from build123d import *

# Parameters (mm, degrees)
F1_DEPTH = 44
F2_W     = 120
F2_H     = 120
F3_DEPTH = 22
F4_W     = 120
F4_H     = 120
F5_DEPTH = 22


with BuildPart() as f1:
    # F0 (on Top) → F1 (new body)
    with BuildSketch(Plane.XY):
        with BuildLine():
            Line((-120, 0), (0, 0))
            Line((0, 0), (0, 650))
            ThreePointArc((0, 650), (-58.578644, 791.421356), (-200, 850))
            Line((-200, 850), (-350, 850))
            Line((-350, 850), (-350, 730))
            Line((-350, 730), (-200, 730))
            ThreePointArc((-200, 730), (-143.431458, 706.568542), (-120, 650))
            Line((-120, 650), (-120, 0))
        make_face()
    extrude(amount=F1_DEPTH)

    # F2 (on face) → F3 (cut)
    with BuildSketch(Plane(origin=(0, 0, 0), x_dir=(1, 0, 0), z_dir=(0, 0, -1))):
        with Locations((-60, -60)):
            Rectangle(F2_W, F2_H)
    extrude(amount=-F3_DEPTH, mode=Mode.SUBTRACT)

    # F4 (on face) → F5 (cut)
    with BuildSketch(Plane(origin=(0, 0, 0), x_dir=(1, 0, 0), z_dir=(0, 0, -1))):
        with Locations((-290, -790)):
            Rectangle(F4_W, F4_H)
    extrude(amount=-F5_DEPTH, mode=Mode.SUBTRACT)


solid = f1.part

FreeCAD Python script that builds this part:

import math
import FreeCAD as App
import Part
import Sketcher

V = App.Vector


def add_polygon(sketch, points):
    """Adds a closed chain of lines whose ends are joined by coincident constraints."""
    first, n = sketch.GeometryCount, len(points)
    for a, b in zip(points, points[1:] + points[:1]):
        sketch.addGeometry(Part.LineSegment(App.Vector(*a, 0), App.Vector(*b, 0)), False)
    for i in range(n):
        sketch.addConstraint(Sketcher.Constraint("Coincident", first + i, 2, first + (i + 1) % n, 1))

doc = App.newDocument("Part")
body = doc.addObject("PartDesign::Body", "Body")

# Sketch on XY plane
sketch1 = doc.addObject("Sketcher::SketchObject", "Sketch")
body.addObject(sketch1)
sketch1.AttachmentSupport = (doc.XY_Plane, [""])
sketch1.MapMode = "FlatFace"
sketch1.addGeometry([
    Part.LineSegment(V(-120, 0, 0), V(0, 0, 0)),  # 0
    Part.LineSegment(V(0, 0, 0), V(0, 650, 0)),  # 1
    Part.ArcOfCircle(Part.Circle(V(-200, 650, 0), V(0, 0, 1), 200), math.radians(0), math.radians(90)),  # 2
    Part.LineSegment(V(-200, 850, 0), V(-350, 850, 0)),  # 3
    Part.LineSegment(V(-350, 850, 0), V(-350, 730, 0)),  # 4
    Part.LineSegment(V(-350, 730, 0), V(-200, 730, 0)),  # 5
    Part.ArcOfCircle(Part.Circle(V(-200, 650, 0), V(0, 0, 1), 80), math.radians(0), math.radians(90)),  # 6
    Part.LineSegment(V(-120, 650, 0), V(-120, 0, 0)),  # 7
], False)
sketch1.addConstraint([
    Sketcher.Constraint("Coincident", 0, 2, 1, 1),
    Sketcher.Constraint("Tangent", 1, 2, 2, 1),
    Sketcher.Constraint("Tangent", 2, 2, 3, 1),
    Sketcher.Constraint("Coincident", 3, 2, 4, 1),
    Sketcher.Constraint("Coincident", 4, 2, 5, 1),
    Sketcher.Constraint("Tangent", 5, 2, 6, 2),
    Sketcher.Constraint("Tangent", 6, 1, 7, 1),
    Sketcher.Constraint("Coincident", 7, 2, 0, 1),
    Sketcher.Constraint("Horizontal", 0),
    Sketcher.Constraint("Vertical", 1),
    Sketcher.Constraint("Horizontal", 3),
    Sketcher.Constraint("Vertical", 4),
    Sketcher.Constraint("Horizontal", 5),
    Sketcher.Constraint("Vertical", 7),
    Sketcher.Constraint("Coincident", 0, 2, -1, 1),
    Sketcher.Constraint("Coincident", 6, 3, 2, 3),
    Sketcher.Constraint("Radius", 2, 200.000001),
    Sketcher.Constraint("Radius", 6, 80.000002),
    Sketcher.Constraint("DistanceX", 3, 2, 3, 1, 150.0),
    Sketcher.Constraint("DistanceY", 1, 1, 1, 2, 650.0),
])
pad1 = doc.addObject("PartDesign::Pad", "Pad")
body.addObject(pad1)
pad1.Profile = sketch1
pad1.Length = 44

# Sketch on XY plane
sketch2 = doc.addObject("Sketcher::SketchObject", "Sketch001")
body.addObject(sketch2)
sketch2.AttachmentSupport = (doc.XY_Plane, [""])
sketch2.MapMode = "FlatFace"
add_polygon(sketch2, [(-120, 0), (-120, 120), (0, 120), (0, 0)])  # lines 0-3
sketch2.addConstraint([
    Sketcher.Constraint("Vertical", 0),
    Sketcher.Constraint("Horizontal", 1),
    Sketcher.Constraint("Vertical", 2),
    Sketcher.Constraint("Horizontal", 3),
    Sketcher.Constraint("Coincident", 2, 2, -1, 1),
    Sketcher.Constraint("Equal", 3, 0),
    Sketcher.Constraint("DistanceX", 1, 1, 1, 2, 120.0),
])
pocket1 = doc.addObject("PartDesign::Pocket", "Pocket")
body.addObject(pocket1)
pocket1.Profile = sketch2
pocket1.Length = 22
pocket1.Reversed = True

# Sketch on XY plane
sketch3 = doc.addObject("Sketcher::SketchObject", "Sketch002")
body.addObject(sketch3)
sketch3.AttachmentSupport = (doc.XY_Plane, [""])
sketch3.MapMode = "FlatFace"
add_polygon(sketch3, [(-350, 730), (-350, 850), (-230, 850), (-230, 730)])  # lines 0-3
sketch3.addConstraint([
    Sketcher.Constraint("Vertical", 0),
    Sketcher.Constraint("Horizontal", 1),
    Sketcher.Constraint("Vertical", 2),
    Sketcher.Constraint("Horizontal", 3),
    Sketcher.Constraint("Equal", 3, 0),
    Sketcher.Constraint("DistanceX", 1, 1, 1, 2, 120.0),
    Sketcher.Constraint("DistanceX", 0, 2, -1, 1, 350.0),
    Sketcher.Constraint("DistanceY", -1, 1, 0, 2, 850.0),
])
pocket2 = doc.addObject("PartDesign::Pocket", "Pocket001")
body.addObject(pocket2)
pocket2.Profile = sketch3
pocket2.Length = 22
pocket2.Reversed = True

doc.recompute()
